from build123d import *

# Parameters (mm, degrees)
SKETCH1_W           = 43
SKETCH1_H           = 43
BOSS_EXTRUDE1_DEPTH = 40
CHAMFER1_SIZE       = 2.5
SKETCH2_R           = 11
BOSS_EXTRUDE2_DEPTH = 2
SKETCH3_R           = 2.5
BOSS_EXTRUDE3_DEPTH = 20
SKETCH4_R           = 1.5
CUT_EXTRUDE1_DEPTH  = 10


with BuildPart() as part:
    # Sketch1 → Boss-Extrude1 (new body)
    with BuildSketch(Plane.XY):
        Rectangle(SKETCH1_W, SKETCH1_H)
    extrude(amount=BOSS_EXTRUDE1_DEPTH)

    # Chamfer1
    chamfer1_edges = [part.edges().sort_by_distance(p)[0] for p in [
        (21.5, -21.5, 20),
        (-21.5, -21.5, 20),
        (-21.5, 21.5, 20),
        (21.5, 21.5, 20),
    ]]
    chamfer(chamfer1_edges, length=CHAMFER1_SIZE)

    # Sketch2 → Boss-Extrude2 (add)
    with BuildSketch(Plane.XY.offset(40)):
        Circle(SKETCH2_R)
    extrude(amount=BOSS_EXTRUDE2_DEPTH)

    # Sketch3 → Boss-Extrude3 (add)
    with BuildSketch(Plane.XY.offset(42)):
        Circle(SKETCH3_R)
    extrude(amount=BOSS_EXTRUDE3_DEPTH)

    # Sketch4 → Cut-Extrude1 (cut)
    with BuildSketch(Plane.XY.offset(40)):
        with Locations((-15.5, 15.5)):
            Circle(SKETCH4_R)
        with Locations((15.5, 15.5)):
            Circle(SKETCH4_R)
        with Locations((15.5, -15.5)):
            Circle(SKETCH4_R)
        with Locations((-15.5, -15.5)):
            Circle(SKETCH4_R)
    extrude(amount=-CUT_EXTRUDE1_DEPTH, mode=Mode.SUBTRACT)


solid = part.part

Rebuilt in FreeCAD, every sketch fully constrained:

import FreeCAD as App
import Part
import Sketcher
Q = App.Units.Quantity


def edges_at(feature, points):
    """Names of the edges that pass closest to the given points."""
    edges = feature.Shape.Edges
    near = lambda p: min(range(len(edges)), key=lambda i: edges[i].distToShape(Part.Vertex(*p))[0])
    return sorted({f"Edge{near(p) + 1}" for p in points})


def add_polygon(sketch, points):
    """Adds a closed chain of lines whose ends are joined by coincident constraints."""
    first, n = sketch.GeometryCount, len(points)
    for a, b in zip(points, points[1:] + points[:1]):
        sketch.addGeometry(Part.LineSegment(App.Vector(*a, 0), App.Vector(*b, 0)), False)
    for i in range(n):
        sketch.addConstraint(Sketcher.Constraint("Coincident", first + i, 2, first + (i + 1) % n, 1))

doc = App.newDocument("Part")
body = doc.addObject("PartDesign::Body", "Body")

# Sketch on XY plane
sketch1 = body.newObject("Sketcher::SketchObject", "Sketch")
sketch1.AttachmentSupport = (doc.getObject("XY_Plane"), [""])
sketch1.MapMode = "FlatFace"
add_polygon(sketch1, [(-21.5, 21.5), (-21.5, -21.5), (21.5, -21.5), (21.5, 21.5)])  # lines 0-3
sketch1.addConstraint([
    Sketcher.Constraint("Vertical", 0),
    Sketcher.Constraint("Horizontal", 1),
    Sketcher.Constraint("Vertical", 2),
    Sketcher.Constraint("Horizontal", 3),
    Sketcher.Constraint("Symmetric", 0, 2, 2, 2, -1, 1),
    Sketcher.Constraint("Equal", 3, 0),
    Sketcher.Constraint("DistanceX", 1, 1, 1, 2, Q("43 mm")),
])
pad1 = body.newObject("PartDesign::Pad", "Pad")
pad1.Profile = sketch1
pad1.Length = 40
doc.recompute()

chamfer = body.newObject("PartDesign::Chamfer", "Chamfer")
chamfer.Base = (pad1, edges_at(pad1, [
    (21.5, -21.5, 20),
    (-21.5, -21.5, 20),
    (-21.5, 21.5, 20),
    (21.5, 21.5, 20),
]))
chamfer.Size = 2.5

# Sketch on XY plane
sketch2 = body.newObject("Sketcher::SketchObject", "Sketch001")
sketch2.AttachmentSupport = (doc.getObject("XY_Plane"), [""])
sketch2.MapMode = "FlatFace"
sketch2.AttachmentOffset = App.Placement(App.Vector(0, 0, 40), App.Rotation())
sketch2.addGeometry(Part.Circle(App.Vector(0, 0, 0), App.Vector(0, 0, 1), 11), False)
sketch2.addConstraint([
    Sketcher.Constraint("Coincident", 0, 3, -1, 1),
    Sketcher.Constraint("Diameter", 0, Q("22 mm")),
])
pad2 = body.newObject("PartDesign::Pad", "Pad001")
pad2.Profile = sketch2
pad2.Length = 2

# Sketch on XY plane
sketch3 = body.newObject("Sketcher::SketchObject", "Sketch002")
sketch3.AttachmentSupport = (doc.getObject("XY_Plane"), [""])
sketch3.MapMode = "FlatFace"
sketch3.AttachmentOffset = App.Placement(App.Vector(0, 0, 42), App.Rotation())
sketch3.addGeometry(Part.Circle(App.Vector(0, 0, 0), App.Vector(0, 0, 1), 2.5), False)
sketch3.addConstraint([
    Sketcher.Constraint("Coincident", 0, 3, -1, 1),
    Sketcher.Constraint("Diameter", 0, Q("5 mm")),
])
pad3 = body.newObject("PartDesign::Pad", "Pad002")
pad3.Profile = sketch3
pad3.Length = 20

# Sketch on XY plane
sketch4 = body.newObject("Sketcher::SketchObject", "Sketch003")
sketch4.AttachmentSupport = (doc.getObject("XY_Plane"), [""])
sketch4.MapMode = "FlatFace"
sketch4.AttachmentOffset = App.Placement(App.Vector(0, 0, 40), App.Rotation())
sketch4.addGeometry([
    Part.Circle(App.Vector(-15.5, 15.5, 0), App.Vector(0, 0, 1), 1.5),
    Part.Circle(App.Vector(15.5, 15.5, 0), App.Vector(0, 0, 1), 1.5),
    Part.Circle(App.Vector(15.5, -15.5, 0), App.Vector(0, 0, 1), 1.5),
    Part.Circle(App.Vector(-15.5, -15.5, 0), App.Vector(0, 0, 1), 1.5),
], False)
sketch4.addConstraint([
    Sketcher.Constraint("Equal", 0, 1),
    Sketcher.Constraint("Equal", 1, 2),
    Sketcher.Constraint("Equal", 2, 3),
    Sketcher.Constraint("Symmetric", 0, 3, 2, 3, -1, 1),
    Sketcher.Constraint("Symmetric", 1, 3, 3, 3, -1, 1),
    Sketcher.Constraint("Symmetric", 0, 3, 1, 3, -2),
    Sketcher.Constraint("Diameter", 0, Q("3 mm")),
    Sketcher.Constraint("DistanceX", 0, 3, 1, 3, Q("31 mm")),
    Sketcher.Constraint("DistanceY", 2, 3, 1, 3, Q("31 mm")),
])
pocket1 = body.newObject("PartDesign::Pocket", "Pocket")
pocket1.Profile = sketch4
pocket1.Length = 10

doc.recompute()
